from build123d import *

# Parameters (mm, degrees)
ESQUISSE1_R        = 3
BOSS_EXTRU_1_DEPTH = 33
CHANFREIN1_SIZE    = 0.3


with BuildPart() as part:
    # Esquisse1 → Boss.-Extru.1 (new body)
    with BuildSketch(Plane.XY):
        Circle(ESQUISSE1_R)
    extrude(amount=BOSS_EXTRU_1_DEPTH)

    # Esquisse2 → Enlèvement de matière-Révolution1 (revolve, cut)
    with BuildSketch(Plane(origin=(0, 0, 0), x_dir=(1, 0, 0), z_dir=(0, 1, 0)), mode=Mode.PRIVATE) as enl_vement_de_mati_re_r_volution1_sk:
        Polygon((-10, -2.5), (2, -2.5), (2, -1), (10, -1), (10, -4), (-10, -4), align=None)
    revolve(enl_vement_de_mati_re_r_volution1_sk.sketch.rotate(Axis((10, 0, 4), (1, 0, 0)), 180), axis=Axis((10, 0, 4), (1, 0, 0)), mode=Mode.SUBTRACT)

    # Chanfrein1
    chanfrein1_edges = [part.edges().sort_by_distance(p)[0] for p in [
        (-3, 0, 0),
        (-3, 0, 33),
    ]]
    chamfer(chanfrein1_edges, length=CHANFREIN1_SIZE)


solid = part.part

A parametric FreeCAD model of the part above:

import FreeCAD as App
import Part
import Sketcher
Q = App.Units.Quantity


def edges_at(feature, points):
    """Names of the edges that pass closest to the given points."""
    edges = feature.Shape.Edges
    near = lambda p: min(range(len(edges)), key=lambda i: edges[i].distToShape(Part.Vertex(*p))[0])
    return sorted({f"Edge{near(p) + 1}" for p in points})

doc = App.newDocument("Part")
body = doc.addObject("PartDesign::Body", "Body")

sketch1 = doc.addObject("Sketcher::SketchObject", "Sketch")
body.addObject(sketch1)
sketch1.AttachmentSupport = (doc.XY_Plane, [""])
sketch1.MapMode = "FlatFace"
sketch1.addGeometry(Part.Circle(App.Vector(0, 0, 0), App.Vector(0, 0, 1), 3), False)
sketch1.addConstraint([
    Sketcher.Constraint("Coincident", 0, 3, -1, 1),
    Sketcher.Constraint("Diameter", 0, Q("6 mm")),
])
pad1 = doc.addObject("PartDesign::Pad", "Pad")
body.addObject(pad1)
pad1.Profile = sketch1
pad1.Length = 33

sketch2 = doc.addObject("Sketcher::SketchObject", "Sketch001")
body.addObject(sketch2)
sketch2.AttachmentSupport = (doc.XZ_Plane, [""])
sketch2.MapMode = "FlatFace"
sketch2.addGeometry([
    Part.LineSegment(App.Vector(2, 2.5, 0), App.Vector(-10, 2.5, 0)),
    Part.LineSegment(App.Vector(-10, 2.5, 0), App.Vector(-10, 4, 0)),
    Part.LineSegment(App.Vector(-10, 4, 0), App.Vector(10, 4, 0)),
    Part.LineSegment(App.Vector(10, 4, 0), App.Vector(10, 1, 0)),
    Part.LineSegment(App.Vector(10, 1, 0), App.Vector(2, 1, 0)),
    Part.LineSegment(App.Vector(2, 1, 0), App.Vector(2, 2.5, 0)),
], False)
sketch2.addGeometry(Part.LineSegment(App.Vector(-10, 4, 0), App.Vector(10, 4, 0)), True)
sketch2.addConstraint([
    Sketcher.Constraint("Coincident", 0, 2, 1, 1),
    Sketcher.Constraint("Coincident", 1, 2, 2, 1),
    Sketcher.Constraint("Coincident", 2, 2, 3, 1),
    Sketcher.Constraint("Coincident", 3, 2, 4, 1),
    Sketcher.Constraint("Coincident", 4, 2, 5, 1),
    Sketcher.Constraint("Coincident", 5, 2, 0, 1),
    Sketcher.Constraint("Horizontal", 0),
    Sketcher.Constraint("Vertical", 1),
    Sketcher.Constraint("Horizontal", 2),
    Sketcher.Constraint("Vertical", 3),
    Sketcher.Constraint("Horizontal", 4),
    Sketcher.Constraint("Vertical", 5),
    Sketcher.Constraint("Horizontal", 6),
    Sketcher.Constraint("Coincident", 6, 1, 1, 2),
    Sketcher.Constraint("Vertical", 3, 2, 6, 2),
    Sketcher.Constraint("Equal", 1, 5),
    Sketcher.Constraint("DistanceX", 0, 2, 0, 1, Q("12 mm")),
    Sketcher.Constraint("DistanceX", 2, 1, 2, 2, Q("20 mm")),
    Sketcher.Constraint("DistanceY", 3, 2, 3, 1, Q("3 mm")),
    Sketcher.Constraint("DistanceX", 0, 2, -1, 1, Q("10 mm")),
    Sketcher.Constraint("DistanceY", -1, 1, 1, 2, Q("4 mm")),
])
groove = doc.addObject("PartDesign::Groove", "Groove")
body.addObject(groove)
groove.Profile = sketch2
groove.ReferenceAxis = (sketch2, ["Axis0"])
groove.Angle = 360
doc.recompute()

chamfer = doc.addObject("PartDesign::Chamfer", "Chamfer")
body.addObject(chamfer)
chamfer.Base = (groove, edges_at(groove, [(-3, 0, 0), (-3, 0, 33)]))
chamfer.Size = 0.3

doc.recompute()
